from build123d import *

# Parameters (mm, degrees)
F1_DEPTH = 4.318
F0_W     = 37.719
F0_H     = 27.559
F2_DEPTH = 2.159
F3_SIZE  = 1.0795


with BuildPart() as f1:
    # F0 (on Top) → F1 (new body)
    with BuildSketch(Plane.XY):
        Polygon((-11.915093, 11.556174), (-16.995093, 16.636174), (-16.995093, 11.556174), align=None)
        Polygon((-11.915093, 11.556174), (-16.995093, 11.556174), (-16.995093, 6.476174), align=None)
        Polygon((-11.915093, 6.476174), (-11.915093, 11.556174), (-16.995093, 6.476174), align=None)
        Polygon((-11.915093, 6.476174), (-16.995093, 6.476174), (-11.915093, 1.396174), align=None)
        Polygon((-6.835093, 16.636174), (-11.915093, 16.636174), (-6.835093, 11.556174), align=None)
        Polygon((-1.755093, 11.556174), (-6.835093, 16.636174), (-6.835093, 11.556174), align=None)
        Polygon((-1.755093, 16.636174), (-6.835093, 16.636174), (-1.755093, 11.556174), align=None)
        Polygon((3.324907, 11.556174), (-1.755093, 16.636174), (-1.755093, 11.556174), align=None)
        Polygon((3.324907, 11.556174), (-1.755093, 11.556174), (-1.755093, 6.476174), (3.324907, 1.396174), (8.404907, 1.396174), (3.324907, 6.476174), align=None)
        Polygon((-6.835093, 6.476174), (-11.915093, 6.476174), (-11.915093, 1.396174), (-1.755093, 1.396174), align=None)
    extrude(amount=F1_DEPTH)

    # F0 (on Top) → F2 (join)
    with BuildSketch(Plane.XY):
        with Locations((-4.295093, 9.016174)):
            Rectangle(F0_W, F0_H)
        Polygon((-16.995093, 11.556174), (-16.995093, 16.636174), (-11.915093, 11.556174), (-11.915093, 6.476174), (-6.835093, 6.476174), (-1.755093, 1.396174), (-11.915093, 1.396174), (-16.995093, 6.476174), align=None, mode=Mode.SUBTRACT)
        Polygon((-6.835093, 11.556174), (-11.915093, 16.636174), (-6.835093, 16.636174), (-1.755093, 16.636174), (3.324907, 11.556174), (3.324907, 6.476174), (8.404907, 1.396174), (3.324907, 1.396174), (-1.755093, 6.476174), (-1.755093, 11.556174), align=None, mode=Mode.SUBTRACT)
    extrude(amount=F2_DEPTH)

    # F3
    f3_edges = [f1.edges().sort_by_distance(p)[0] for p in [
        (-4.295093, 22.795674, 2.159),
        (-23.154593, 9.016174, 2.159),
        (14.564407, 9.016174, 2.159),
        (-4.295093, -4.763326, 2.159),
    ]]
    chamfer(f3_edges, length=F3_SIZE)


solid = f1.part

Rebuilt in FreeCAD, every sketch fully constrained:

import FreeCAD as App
import Part
import Sketcher
from FreeCAD import Vector
Q = App.Units.Quantity


def edges_at(feature, points):
    """Names of the edges that pass closest to the given points."""
    edges = feature.Shape.Edges
    near = lambda p: min(range(len(edges)), key=lambda i: edges[i].distToShape(Part.Vertex(*p))[0])
    return sorted({f"Edge{near(p) + 1}" for p in points})

doc = App.newDocument("Part")
body = doc.addObject("PartDesign::Body", "Body")
body.AllowCompound = True

sketch1 = body.newObject("Sketcher::SketchObject", "Sketch")
sketch1.AttachmentSupport = (doc.getObject("XY_Plane"), [""])
sketch1.MapMode = "FlatFace"
sketch1.addGeometry(Part.LineSegment(Vector(-12, 12, 0), Vector(-17, 17, 0)), False)
sketch1.addGeometry(Part.LineSegment(Vector(-17, 17, 0), Vector(-17, 6, 0)), False)
sketch1.addGeometry(Part.LineSegment(Vector(-17, 6, 0), Vector(-12, 1, 0)), False)
sketch1.addGeometry(Part.LineSegment(Vector(-12, 1, 0), Vector(-2, 1, 0)), False)
sketch1.addGeometry(Part.LineSegment(Vector(-2, 1, 0), Vector(-7, 6, 0)), False)
sketch1.addGeometry(Part.LineSegment(Vector(-7, 6, 0), Vector(-12, 6, 0)), False)
sketch1.addGeometry(Part.LineSegment(Vector(-12, 6, 0), Vector(-12, 12, 0)), False)
sketch1.addGeometry(Part.LineSegment(Vector(-12, 17, 0), Vector(-7, 12, 0)), False)
sketch1.addGeometry(Part.LineSegment(Vector(-7, 12, 0), Vector(-2, 12, 0)), False)
sketch1.addGeometry(Part.LineSegment(Vector(-2, 12, 0), Vector(-2, 6, 0)), False)
sketch1.addGeometry(Part.LineSegment(Vector(-2, 6, 0), Vector(3, 1, 0)), False)
sketch1.addGeometry(Part.LineSegment(Vector(3, 1, 0), Vector(8, 1, 0)), False)
sketch1.addGeometry(Part.LineSegment(Vector(8, 1, 0), Vector(3, 6, 0)), False)
sketch1.addGeometry(Part.LineSegment(Vector(3, 6, 0), Vector(3, 12, 0)), False)
sketch1.addGeometry(Part.LineSegment(Vector(3, 12, 0), Vector(-2, 17, 0)), False)
sketch1.addGeometry(Part.LineSegment(Vector(-2, 17, 0), Vector(-12, 17, 0)), False)
sketch1.addConstraint(Sketcher.Constraint("Coincident", 0, 2, 1, 1))
sketch1.addConstraint(Sketcher.Constraint("Coincident", 1, 2, 2, 1))
sketch1.addConstraint(Sketcher.Constraint("Coincident", 2, 2, 3, 1))
sketch1.addConstraint(Sketcher.Constraint("Coincident", 3, 2, 4, 1))
sketch1.addConstraint(Sketcher.Constraint("Coincident", 4, 2, 5, 1))
sketch1.addConstraint(Sketcher.Constraint("Coincident", 5, 2, 6, 1))
sketch1.addConstraint(Sketcher.Constraint("Coincident", 6, 2, 0, 1))
sketch1.addConstraint(Sketcher.Constraint("Coincident", 7, 2, 8, 1))
sketch1.addConstraint(Sketcher.Constraint("Coincident", 8, 2, 9, 1))
sketch1.addConstraint(Sketcher.Constraint("Coincident", 9, 2, 10, 1))
sketch1.addConstraint(Sketcher.Constraint("Coincident", 10, 2, 11, 1))
sketch1.addConstraint(Sketcher.Constraint("Coincident", 11, 2, 12, 1))
sketch1.addConstraint(Sketcher.Constraint("Coincident", 12, 2, 13, 1))
sketch1.addConstraint(Sketcher.Constraint("Coincident", 13, 2, 14, 1))
sketch1.addConstraint(Sketcher.Constraint("Coincident", 14, 2, 15, 1))
sketch1.addConstraint(Sketcher.Constraint("Coincident", 15, 2, 7, 1))
sketch1.addConstraint(Sketcher.Constraint("Vertical", 1))
sketch1.addConstraint(Sketcher.Constraint("Horizontal", 3))
sketch1.addConstraint(Sketcher.Constraint("Horizontal", 5))
sketch1.addConstraint(Sketcher.Constraint("Vertical", 6))
sketch1.addConstraint(Sketcher.Constraint("Horizontal", 8))
sketch1.addConstraint(Sketcher.Constraint("Vertical", 9))
sketch1.addConstraint(Sketcher.Constraint("Horizontal", 11))
sketch1.addConstraint(Sketcher.Constraint("Vertical", 13))
sketch1.addConstraint(Sketcher.Constraint("Horizontal", 15))
sketch1.addConstraint(Sketcher.Constraint("Parallel", 0, 2))
sketch1.addConstraint(Sketcher.Constraint("Parallel", 2, 4))
sketch1.addConstraint(Sketcher.Constraint("Parallel", 4, 7))
sketch1.addConstraint(Sketcher.Constraint("Parallel", 7, 10))
sketch1.addConstraint(Sketcher.Constraint("Parallel", 10, 12))
sketch1.addConstraint(Sketcher.Constraint("Parallel", 12, 14))
sketch1.addConstraint(Sketcher.Constraint("Horizontal", 1, 2, 4, 2))
sketch1.addConstraint(Sketcher.Constraint("Horizontal", 6, 2, 7, 2))
sketch1.addConstraint(Sketcher.Constraint("Horizontal", 5, 2, 9, 2))
sketch1.addConstraint(Sketcher.Constraint("Horizontal", 3, 2, 10, 2))
sketch1.addConstraint(Sketcher.Constraint("Horizontal", 9, 2, 12, 2))
sketch1.addConstraint(Sketcher.Constraint("Horizontal", 8, 2, 13, 2))
sketch1.addConstraint(Sketcher.Constraint("Horizontal", 0, 2, 14, 2))
sketch1.addConstraint(Sketcher.Constraint("Vertical", 2, 2, 5, 2))
sketch1.addConstraint(Sketcher.Constraint("Vertical", 4, 2, 7, 2))
sketch1.addConstraint(Sketcher.Constraint("Vertical", 3, 2, 8, 2))
sketch1.addConstraint(Sketcher.Constraint("Vertical", 10, 2, 12, 2))
sketch1.addConstraint(Sketcher.Constraint("Vertical", 6, 2, 15, 2))
sketch1.addConstraint(Sketcher.Constraint("Equal", 15, 1))
sketch1.addConstraint(Sketcher.Constraint("Equal", 11, 6))
sketch1.addConstraint(Sketcher.Constraint("DistanceX", 3, 1, 3, 2, Q("0.4 in")))
sketch1.addConstraint(Sketcher.Constraint("DistanceX", 0, 2, -1, 1, 16.995093))
sketch1.addConstraint(Sketcher.Constraint("DistanceY", -1, 1, 0, 2, 16.636174))
pad1 = body.newObject("PartDesign::Pad", "Pad")
pad1.Profile = sketch1
pad1.Length = Q("0.17 in")

sketch2 = body.newObject("Sketcher::SketchObject", "Sketch001")
sketch2.AttachmentSupport = (doc.getObject("XY_Plane"), [""])
sketch2.MapMode = "FlatFace"
sketch2.addGeometry(Part.LineSegment(Vector(-23, 23, 0), Vector(-23, -5, 0)), False)
sketch2.addGeometry(Part.LineSegment(Vector(-23, -5, 0), Vector(15, -5, 0)), False)
sketch2.addGeometry(Part.LineSegment(Vector(15, -5, 0), Vector(15, 23, 0)), False)
sketch2.addGeometry(Part.LineSegment(Vector(15, 23, 0), Vector(-23, 23, 0)), False)
sketch2.addGeometry(Part.LineSegment(Vector(-17, 6, 0), Vector(-17, 17, 0)), False)
sketch2.addGeometry(Part.LineSegment(Vector(-17, 17, 0), Vector(-12, 12, 0)), False)
sketch2.addGeometry(Part.LineSegment(Vector(-12, 12, 0), Vector(-12, 6, 0)), False)
sketch2.addGeometry(Part.LineSegment(Vector(-12, 6, 0), Vector(-7, 6, 0)), False)
sketch2.addGeometry(Part.LineSegment(Vector(-7, 6, 0), Vector(-2, 1, 0)), False)
sketch2.addGeometry(Part.LineSegment(Vector(-2, 1, 0), Vector(-12, 1, 0)), False)
sketch2.addGeometry(Part.LineSegment(Vector(-12, 1, 0), Vector(-17, 6, 0)), False)
sketch2.addGeometry(Part.LineSegment(Vector(-2, 12, 0), Vector(-7, 12, 0)), False)
sketch2.addGeometry(Part.LineSegment(Vector(-7, 12, 0), Vector(-12, 17, 0)), False)
sketch2.addGeometry(Part.LineSegment(Vector(-12, 17, 0), Vector(-2, 17, 0)), False)
sketch2.addGeometry(Part.LineSegment(Vector(-2, 17, 0), Vector(3, 12, 0)), False)
sketch2.addGeometry(Part.LineSegment(Vector(3, 12, 0), Vector(3, 6, 0)), False)
sketch2.addGeometry(Part.LineSegment(Vector(3, 6, 0), Vector(8, 1, 0)), False)
sketch2.addGeometry(Part.LineSegment(Vector(8, 1, 0), Vector(3, 1, 0)), False)
sketch2.addGeometry(Part.LineSegment(Vector(3, 1, 0), Vector(-2, 6, 0)), False)
sketch2.addGeometry(Part.LineSegment(Vector(-2, 6, 0), Vector(-2, 12, 0)), False)
sketch2.addConstraint(Sketcher.Constraint("Coincident", 0, 2, 1, 1))
sketch2.addConstraint(Sketcher.Constraint("Coincident", 1, 2, 2, 1))
sketch2.addConstraint(Sketcher.Constraint("Coincident", 2, 2, 3, 1))
sketch2.addConstraint(Sketcher.Constraint("Coincident", 3, 2, 0, 1))
sketch2.addConstraint(Sketcher.Constraint("Coincident", 4, 2, 5, 1))
sketch2.addConstraint(Sketcher.Constraint("Coincident", 5, 2, 6, 1))
sketch2.addConstraint(Sketcher.Constraint("Coincident", 6, 2, 7, 1))
sketch2.addConstraint(Sketcher.Constraint("Coincident", 7, 2, 8, 1))
sketch2.addConstraint(Sketcher.Constraint("Coincident", 8, 2, 9, 1))
sketch2.addConstraint(Sketcher.Constraint("Coincident", 9, 2, 10, 1))
sketch2.addConstraint(Sketcher.Constraint("Coincident", 10, 2, 4, 1))
sketch2.addConstraint(Sketcher.Constraint("Coincident", 11, 2, 12, 1))
sketch2.addConstraint(Sketcher.Constraint("Coincident", 12, 2, 13, 1))
sketch2.addConstraint(Sketcher.Constraint("Coincident", 13, 2, 14, 1))
sketch2.addConstraint(Sketcher.Constraint("Coincident", 14, 2, 15, 1))
sketch2.addConstraint(Sketcher.Constraint("Coincident", 15, 2, 16, 1))
sketch2.addConstraint(Sketcher.Constraint("Coincident", 16, 2, 17, 1))
sketch2.addConstraint(Sketcher.Constraint("Coincident", 17, 2, 18, 1))
sketch2.addConstraint(Sketcher.Constraint("Coincident", 18, 2, 19, 1))
sketch2.addConstraint(Sketcher.Constraint("Coincident", 19, 2, 11, 1))
sketch2.addConstraint(Sketcher.Constraint("Vertical", 0))
sketch2.addConstraint(Sketcher.Constraint("Horizontal", 1))
sketch2.addConstraint(Sketcher.Constraint("Vertical", 2))
sketch2.addConstraint(Sketcher.Constraint("Horizontal", 3))
sketch2.addConstraint(Sketcher.Constraint("Vertical", 4))
sketch2.addConstraint(Sketcher.Constraint("Vertical", 6))
sketch2.addConstraint(Sketcher.Constraint("Horizontal", 7))
sketch2.addConstraint(Sketcher.Constraint("Horizontal", 9))
sketch2.addConstraint(Sketcher.Constraint("Horizontal", 11))
sketch2.addConstraint(Sketcher.Constraint("Horizontal", 13))
sketch2.addConstraint(Sketcher.Constraint("Vertical", 15))
sketch2.addConstraint(Sketcher.Constraint("Horizontal", 17))
sketch2.addConstraint(Sketcher.Constraint("Vertical", 19))
sketch2.addConstraint(Sketcher.Constraint("Parallel", 5, 8))
sketch2.addConstraint(Sketcher.Constraint("Parallel", 8, 10))
sketch2.addConstraint(Sketcher.Constraint("Parallel", 10, 12))
sketch2.addConstraint(Sketcher.Constraint("Parallel", 12, 14))
sketch2.addConstraint(Sketcher.Constraint("Parallel", 14, 16))
sketch2.addConstraint(Sketcher.Constraint("Parallel", 16, 18))
sketch2.addConstraint(Sketcher.Constraint("Horizontal", 7, 2, 10, 2))
sketch2.addConstraint(Sketcher.Constraint("Horizontal", 5, 2, 11, 2))
sketch2.addConstraint(Sketcher.Constraint("Horizontal", 4, 2, 12, 2))
sketch2.addConstraint(Sketcher.Constraint("Horizontal", 11, 2, 14, 2))
sketch2.addConstraint(Sketcher.Constraint("Horizontal", 10, 2, 15, 2))
sketch2.addConstraint(Sketcher.Constraint("Horizontal", 9, 2, 16, 2))
sketch2.addConstraint(Sketcher.Constraint("Horizontal", 15, 2, 18, 2))
sketch2.addConstraint(Sketcher.Constraint("Vertical", 6, 2, 9, 2))
sketch2.addConstraint(Sketcher.Constraint("Vertical", 7, 2, 11, 2))
sketch2.addConstraint(Sketcher.Constraint("Vertical", 9, 2, 12, 2))
sketch2.addConstraint(Sketcher.Constraint("Vertical", 8, 2, 13, 2))
sketch2.addConstraint(Sketcher.Constraint("Vertical", 15, 2, 17, 2))
sketch2.addConstraint(Sketcher.Constraint("Equal", 13, 4))
sketch2.addConstraint(Sketcher.Constraint("Equal", 17, 6))
sketch2.addConstraint(Sketcher.Constraint("DistanceX", 7, 1, 7, 2, Q("0.2 in")))
sketch2.addConstraint(Sketcher.Constraint("DistanceX", 1, 1, 1, 2, Q("1.485 in")))
sketch2.addConstraint(Sketcher.Constraint("DistanceY", 0, 2, 0, 1, Q("1.085 in")))
sketch2.addConstraint(Sketcher.Constraint("DistanceX", 3, 2, 4, 2, Q("0.2425 in")))
sketch2.addConstraint(Sketcher.Constraint("DistanceY", 4, 2, 3, 2, Q("0.2425 in")))
sketch2.addConstraint(Sketcher.Constraint("DistanceX", 0, 2, -1, 1, 23.154593))
sketch2.addConstraint(Sketcher.Constraint("DistanceY", 0, 2, -1, 1, 4.763326))
pad2 = body.newObject("PartDesign::Pad", "Pad001")
pad2.Profile = sketch2
pad2.Length = Q("0.085 in")
doc.recompute()

chamfer = body.newObject("PartDesign::Chamfer", "Chamfer")
chamfer.Base = (pad2, edges_at(pad2, [
    (-4.295, 22.796, 2.159),
    (-23.155, 9.016, 2.159),
    (14.564, 9.016, 2.159),
    (-4.295, -4.763, 2.159),
]))
chamfer.Size = Q("0.0425 in")

doc.recompute()
